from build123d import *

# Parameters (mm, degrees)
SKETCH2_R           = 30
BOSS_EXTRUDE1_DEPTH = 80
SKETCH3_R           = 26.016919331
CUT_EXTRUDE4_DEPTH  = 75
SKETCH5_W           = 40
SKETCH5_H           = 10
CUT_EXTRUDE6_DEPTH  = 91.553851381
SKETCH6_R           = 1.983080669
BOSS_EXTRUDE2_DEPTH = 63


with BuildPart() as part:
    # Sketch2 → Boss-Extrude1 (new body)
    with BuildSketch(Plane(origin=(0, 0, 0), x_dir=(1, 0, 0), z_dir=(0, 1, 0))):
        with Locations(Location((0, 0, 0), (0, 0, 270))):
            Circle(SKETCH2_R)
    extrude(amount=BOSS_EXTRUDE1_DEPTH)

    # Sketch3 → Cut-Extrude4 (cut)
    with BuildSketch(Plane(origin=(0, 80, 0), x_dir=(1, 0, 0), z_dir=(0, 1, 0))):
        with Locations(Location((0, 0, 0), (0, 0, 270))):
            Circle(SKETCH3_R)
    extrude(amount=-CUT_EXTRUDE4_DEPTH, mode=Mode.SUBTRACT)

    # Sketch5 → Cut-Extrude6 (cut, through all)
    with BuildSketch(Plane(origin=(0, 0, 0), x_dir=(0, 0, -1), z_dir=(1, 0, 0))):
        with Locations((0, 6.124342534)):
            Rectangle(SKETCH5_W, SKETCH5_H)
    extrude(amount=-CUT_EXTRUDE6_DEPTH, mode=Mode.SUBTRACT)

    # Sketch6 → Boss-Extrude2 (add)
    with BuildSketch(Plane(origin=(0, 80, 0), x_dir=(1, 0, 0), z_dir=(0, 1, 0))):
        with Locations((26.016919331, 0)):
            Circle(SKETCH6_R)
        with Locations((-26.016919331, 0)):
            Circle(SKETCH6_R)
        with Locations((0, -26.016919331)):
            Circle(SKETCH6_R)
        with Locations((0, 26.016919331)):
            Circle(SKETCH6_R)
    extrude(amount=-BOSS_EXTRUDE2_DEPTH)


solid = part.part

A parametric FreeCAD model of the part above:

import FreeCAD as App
import Part
import Sketcher


def add_polygon(sketch, points):
    """Adds a closed chain of lines whose ends are joined by coincident constraints."""
    first, n = sketch.GeometryCount, len(points)
    for a, b in zip(points, points[1:] + points[:1]):
        sketch.addGeometry(Part.LineSegment(App.Vector(*a, 0), App.Vector(*b, 0)), False)
    for i in range(n):
        sketch.addConstraint(Sketcher.Constraint("Coincident", first + i, 2, first + (i + 1) % n, 1))

doc = App.newDocument("Part")
body = doc.addObject("PartDesign::Body", "Body")

# Sketch on XZ plane
sketch1 = body.newObject("Sketcher::SketchObject", "Sketch")
sketch1.AttachmentSupport = (doc.getObject("XZ_Plane"), [""])
sketch1.MapMode = "FlatFace"
sketch1.addGeometry(Part.Circle(App.Vector(0, 0, 0), App.Vector(0, 0, 1), 30), False)
sketch1.addConstraint([
    Sketcher.Constraint("Coincident", 0, 3, -1, 1),
    Sketcher.Constraint("Diameter", 0, 60.0),
])
pad1 = body.newObject("PartDesign::Pad", "Pad")
pad1.Profile = sketch1
pad1.Length = 80
pad1.Reversed = True

# Sketch on XZ plane
sketch2 = body.newObject("Sketcher::SketchObject", "Sketch001")
sketch2.AttachmentSupport = (doc.getObject("XZ_Plane"), [""])
sketch2.MapMode = "FlatFace"
sketch2.AttachmentOffset = App.Placement(App.Vector(0, 0, -80), App.Rotation())
sketch2.addGeometry(Part.Circle(App.Vector(0, 0, 0), App.Vector(0, 0, 1), 26), False)
sketch2.addConstraint([
    Sketcher.Constraint("Coincident", 0, 3, -1, 1),
    Sketcher.Constraint("Diameter", 0, 52.033839),
])
pocket1 = body.newObject("PartDesign::Pocket", "Pocket")
pocket1.Profile = sketch2
pocket1.Length = 75
pocket1.Reversed = True

# Sketch on YZ plane
sketch3 = body.newObject("Sketcher::SketchObject", "Sketch002")
sketch3.AttachmentSupport = (doc.getObject("YZ_Plane"), [""])
sketch3.MapMode = "FlatFace"
add_polygon(sketch3, [(11, 20), (1, 20), (1, -20), (11, -20)])  # lines 0-3
sketch3.addConstraint([
    Sketcher.Constraint("Horizontal", 0),
    Sketcher.Constraint("Vertical", 1),
    Sketcher.Constraint("Horizontal", 2),
    Sketcher.Constraint("Vertical", 3),
    Sketcher.Constraint("DistanceX", 0, 2, 0, 1, 10.0),
    Sketcher.Constraint("DistanceY", 1, 2, 1, 1, 40.0),
    Sketcher.Constraint("DistanceY", -1, 1, 0, 2, 20.0),
    Sketcher.Constraint("DistanceX", -1, 1, 0, 2, 1.124343),
])
pocket2 = body.newObject("PartDesign::Pocket", "Pocket001")
pocket2.Profile = sketch3
pocket2.Type = "ThroughAll"

# Sketch on XZ plane
sketch4 = body.newObject("Sketcher::SketchObject", "Sketch003")
sketch4.AttachmentSupport = (doc.getObject("XZ_Plane"), [""])
sketch4.MapMode = "FlatFace"
sketch4.AttachmentOffset = App.Placement(App.Vector(0, 0, -80), App.Rotation())
sketch4.addGeometry([
    Part.Circle(App.Vector(26, 0, 0), App.Vector(0, 0, 1), 2),
    Part.Circle(App.Vector(-26, 0, 0), App.Vector(0, 0, 1), 2),
    Part.Circle(App.Vector(0, 26, 0), App.Vector(0, 0, 1), 2),
    Part.Circle(App.Vector(0, -26, 0), App.Vector(0, 0, 1), 2),
], False)
sketch4.addConstraint([
    Sketcher.Constraint("Equal", 0, 1),
    Sketcher.Constraint("Equal", 1, 2),
    Sketcher.Constraint("Equal", 2, 3),
    Sketcher.Constraint("Symmetric", 0, 3, 1, 3, -1, 1),
    Sketcher.Constraint("Symmetric", 2, 3, 3, 3, -1, 1),
    Sketcher.Constraint("PointOnObject", 0, 3, -1),
    Sketcher.Constraint("PointOnObject", 2, 3, -2),
    Sketcher.Constraint("Diameter", 0, 3.966161),
    Sketcher.Constraint("DistanceX", -1, 1, 0, 3, 26.016919),
    Sketcher.Constraint("DistanceY", -1, 1, 2, 3, 26.016919),
])
pad2 = body.newObject("PartDesign::Pad", "Pad001")
pad2.Profile = sketch4
pad2.Length = 63

doc.recompute()
